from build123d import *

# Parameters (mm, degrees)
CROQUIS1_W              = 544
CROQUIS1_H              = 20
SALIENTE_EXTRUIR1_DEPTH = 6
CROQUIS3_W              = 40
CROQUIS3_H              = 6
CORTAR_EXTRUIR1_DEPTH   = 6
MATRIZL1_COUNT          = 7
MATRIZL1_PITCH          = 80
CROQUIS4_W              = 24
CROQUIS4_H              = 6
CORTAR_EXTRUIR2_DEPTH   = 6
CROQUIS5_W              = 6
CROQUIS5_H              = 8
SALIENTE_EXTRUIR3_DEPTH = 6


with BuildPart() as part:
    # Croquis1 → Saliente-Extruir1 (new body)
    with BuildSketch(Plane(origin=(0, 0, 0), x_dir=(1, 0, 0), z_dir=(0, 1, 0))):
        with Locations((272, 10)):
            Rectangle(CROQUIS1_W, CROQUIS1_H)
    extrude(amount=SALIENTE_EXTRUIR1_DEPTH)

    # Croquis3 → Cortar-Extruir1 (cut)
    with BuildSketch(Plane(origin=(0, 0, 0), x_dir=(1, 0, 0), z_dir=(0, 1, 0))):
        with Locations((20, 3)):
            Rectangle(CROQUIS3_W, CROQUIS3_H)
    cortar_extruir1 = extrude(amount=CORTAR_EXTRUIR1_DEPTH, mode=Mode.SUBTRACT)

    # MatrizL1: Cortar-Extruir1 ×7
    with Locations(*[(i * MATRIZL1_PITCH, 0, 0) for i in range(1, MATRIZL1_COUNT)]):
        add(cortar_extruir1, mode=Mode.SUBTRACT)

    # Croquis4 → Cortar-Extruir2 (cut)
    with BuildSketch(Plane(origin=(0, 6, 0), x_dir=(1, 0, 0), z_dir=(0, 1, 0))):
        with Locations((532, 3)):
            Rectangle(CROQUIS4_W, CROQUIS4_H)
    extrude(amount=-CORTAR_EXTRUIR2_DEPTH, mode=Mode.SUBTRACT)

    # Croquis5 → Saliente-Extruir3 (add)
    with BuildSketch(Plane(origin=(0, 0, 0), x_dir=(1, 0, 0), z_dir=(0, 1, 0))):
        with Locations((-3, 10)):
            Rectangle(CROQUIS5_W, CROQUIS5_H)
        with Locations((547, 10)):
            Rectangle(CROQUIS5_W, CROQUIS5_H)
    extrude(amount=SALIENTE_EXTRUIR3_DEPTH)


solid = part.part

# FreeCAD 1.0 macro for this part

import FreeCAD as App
import Part
import Sketcher
from FreeCAD import Vector
Q = App.Units.Quantity

doc = App.newDocument("Part")
params = doc.addObject("Spreadsheet::Sheet", "Params")
for row, (alias, value) in enumerate([
    ("sketch1_width", "544 mm"),
    ("sketch1_height", "20 mm"),
    ("pad1_length", "6 mm"),
    ("sketch2_width", "40 mm"),
    ("sketch2_height", "6 mm"),
    ("pocket1_length", "6 mm"),
    ("linearpattern_pitch", "80 mm"),
    ("sketch3_width", "24 mm"),
    ("sketch3_height", "6 mm"),
    ("pocket2_length", "6 mm"),
    ("sketch4_width", "6 mm"),
    ("sketch4_height", "8 mm"),
    ("pad2_length", "6 mm"),
], start=1):
    params.set(f"A{row}", alias)
    params.set(f"B{row}", "=" + value)
    params.setAlias(f"B{row}", alias)

body = doc.addObject("PartDesign::Body", "Body")

# Sketch on XZ plane
sketch1 = body.newObject("Sketcher::SketchObject", "Sketch")
sketch1.AttachmentSupport = (doc.getObject("XZ_Plane"), [""])
sketch1.MapMode = "FlatFace"
sketch1.addGeometry([
    Part.LineSegment(Vector(0, -20, 0), Vector(0, 0, 0)),
    Part.LineSegment(Vector(0, 0, 0), Vector(544, 0, 0)),
    Part.LineSegment(Vector(544, 0, 0), Vector(544, -20, 0)),
    Part.LineSegment(Vector(544, -20, 0), Vector(0, -20, 0)),
], False)
sketch1.addConstraint([
    Sketcher.Constraint("Coincident", 0, 2, 1, 1),
    Sketcher.Constraint("Coincident", 1, 2, 2, 1),
    Sketcher.Constraint("Coincident", 2, 2, 3, 1),
    Sketcher.Constraint("Coincident", 3, 2, 0, 1),
    Sketcher.Constraint("Vertical", 0),
    Sketcher.Constraint("Horizontal", 1),
    Sketcher.Constraint("Vertical", 2),
    Sketcher.Constraint("Horizontal", 3),
    Sketcher.Constraint("Coincident", 0, 2, -1, 1),
    Sketcher.Constraint("DistanceX", 1, 1, 1, 2, Q("544 mm")),
    Sketcher.Constraint("DistanceY", 0, 1, 0, 2, Q("20 mm")),
])
sketch1.setExpression("Constraints[9]", "Params.sketch1_width")
sketch1.setExpression("Constraints[10]", "Params.sketch1_height")
pad1 = body.newObject("PartDesign::Pad", "Pad")
pad1.Profile = sketch1
pad1.setExpression("Length", "Params.pad1_length")
pad1.Reversed = True

# Sketch on XZ plane
sketch2 = body.newObject("Sketcher::SketchObject", "Sketch001")
sketch2.AttachmentSupport = (doc.getObject("XZ_Plane"), [""])
sketch2.MapMode = "FlatFace"
sketch2.addGeometry([
    Part.LineSegment(Vector(0, -6, 0), Vector(0, 0, 0)),
    Part.LineSegment(Vector(0, 0, 0), Vector(40, 0, 0)),
    Part.LineSegment(Vector(40, 0, 0), Vector(40, -6, 0)),
    Part.LineSegment(Vector(40, -6, 0), Vector(0, -6, 0)),
], False)
sketch2.addConstraint([
    Sketcher.Constraint("Coincident", 0, 2, 1, 1),
    Sketcher.Constraint("Coincident", 1, 2, 2, 1),
    Sketcher.Constraint("Coincident", 2, 2, 3, 1),
    Sketcher.Constraint("Coincident", 3, 2, 0, 1),
    Sketcher.Constraint("Vertical", 0),
    Sketcher.Constraint("Horizontal", 1),
    Sketcher.Constraint("Vertical", 2),
    Sketcher.Constraint("Horizontal", 3),
    Sketcher.Constraint("Coincident", 0, 2, -1, 1),
    Sketcher.Constraint("DistanceX", 1, 1, 1, 2, Q("40 mm")),
    Sketcher.Constraint("DistanceY", 0, 1, 0, 2, Q("6 mm")),
])
sketch2.setExpression("Constraints[9]", "Params.sketch2_width")
sketch2.setExpression("Constraints[10]", "Params.sketch2_height")
pocket1 = body.newObject("PartDesign::Pocket", "Pocket")
pocket1.Profile = sketch2
pocket1.setExpression("Length", "Params.pocket1_length")
doc.recompute()

linearpattern = body.newObject("PartDesign::LinearPattern", "LinearPattern")
linearpattern.Originals = [pocket1]
linearpattern.Direction = (doc.getObject("X_Axis"), [""])
linearpattern.Mode = "offset"
linearpattern.setExpression("Offset", "Params.linearpattern_pitch")
linearpattern.Occurrences = 7
body.Tip = linearpattern

# Sketch on XZ plane
sketch3 = body.newObject("Sketcher::SketchObject", "Sketch002")
sketch3.AttachmentSupport = (doc.getObject("XZ_Plane"), [""])
sketch3.MapMode = "FlatFace"
sketch3.AttachmentOffset = App.Placement(Vector(0, 0, -6), App.Rotation())
sketch3.addGeometry([
    Part.LineSegment(Vector(520, -6, 0), Vector(520, 0, 0)),
    Part.LineSegment(Vector(520, 0, 0), Vector(544, 0, 0)),
    Part.LineSegment(Vector(544, 0, 0), Vector(544, -6, 0)),
    Part.LineSegment(Vector(544, -6, 0), Vector(520, -6, 0)),
], False)
sketch3.addConstraint([
    Sketcher.Constraint("Coincident", 0, 2, 1, 1),
    Sketcher.Constraint("Coincident", 1, 2, 2, 1),
    Sketcher.Constraint("Coincident", 2, 2, 3, 1),
    Sketcher.Constraint("Coincident", 3, 2, 0, 1),
    Sketcher.Constraint("Vertical", 0),
    Sketcher.Constraint("Horizontal", 1),
    Sketcher.Constraint("Vertical", 2),
    Sketcher.Constraint("Horizontal", 3),
    Sketcher.Constraint("PointOnObject", 0, 2, -1),
    Sketcher.Constraint("DistanceX", 1, 1, 1, 2, Q("24 mm")),
    Sketcher.Constraint("DistanceY", 0, 1, 0, 2, Q("6 mm")),
    Sketcher.Constraint("DistanceX", -1, 1, 0, 2, Q("520 mm")),
])
sketch3.setExpression("Constraints[9]", "Params.sketch3_width")
sketch3.setExpression("Constraints[10]", "Params.sketch3_height")
pocket2 = body.newObject("PartDesign::Pocket", "Pocket001")
pocket2.Profile = sketch3
pocket2.setExpression("Length", "Params.pocket2_length")
pocket2.Reversed = True

# Sketch on XZ plane
sketch4 = body.newObject("Sketcher::SketchObject", "Sketch003")
sketch4.AttachmentSupport = (doc.getObject("XZ_Plane"), [""])
sketch4.MapMode = "FlatFace"
sketch4.addGeometry([
    Part.LineSegment(Vector(-6, -14, 0), Vector(-6, -6, 0)),  # 0
    Part.LineSegment(Vector(-6, -6, 0), Vector(0, -6, 0)),  # 1
    Part.LineSegment(Vector(0, -6, 0), Vector(0, -14, 0)),  # 2
    Part.LineSegment(Vector(0, -14, 0), Vector(-6, -14, 0)),  # 3
    Part.LineSegment(Vector(544, -14, 0), Vector(544, -6, 0)),  # 4
    Part.LineSegment(Vector(544, -6, 0), Vector(550, -6, 0)),  # 5
    Part.LineSegment(Vector(550, -6, 0), Vector(550, -14, 0)),  # 6
    Part.LineSegment(Vector(550, -14, 0), Vector(544, -14, 0)),  # 7
], False)
sketch4.addConstraint([
    Sketcher.Constraint("Coincident", 0, 2, 1, 1),
    Sketcher.Constraint("Coincident", 1, 2, 2, 1),
    Sketcher.Constraint("Coincident", 2, 2, 3, 1),
    Sketcher.Constraint("Coincident", 3, 2, 0, 1),
    Sketcher.Constraint("Coincident", 4, 2, 5, 1),
    Sketcher.Constraint("Coincident", 5, 2, 6, 1),
    Sketcher.Constraint("Coincident", 6, 2, 7, 1),
    Sketcher.Constraint("Coincident", 7, 2, 4, 1),
    Sketcher.Constraint("Vertical", 0),
    Sketcher.Constraint("Horizontal", 1),
    Sketcher.Constraint("Vertical", 2),
    Sketcher.Constraint("Horizontal", 3),
    Sketcher.Constraint("Vertical", 4),
    Sketcher.Constraint("Horizontal", 5),
    Sketcher.Constraint("Vertical", 6),
    Sketcher.Constraint("Horizontal", 7),
    Sketcher.Constraint("PointOnObject", 1, 2, -2),
    Sketcher.Constraint("Horizontal", 1, 2, 4, 2),
    Sketcher.Constraint("Horizontal", 3, 2, 6, 2),
    Sketcher.Constraint("Equal", 3, 5),
    Sketcher.Constraint("DistanceX", 1, 1, 1, 2, Q("6 mm")),
    Sketcher.Constraint("DistanceY", 0, 1, 0, 2, Q("8 mm")),
    Sketcher.Constraint("DistanceY", 0, 2, -1, 1, Q("6 mm")),
    Sketcher.Constraint("DistanceX", -1, 1, 4, 2, Q("544 mm")),
])
sketch4.setExpression("Constraints[20]", "Params.sketch4_width")
sketch4.setExpression("Constraints[21]", "Params.sketch4_height")
pad2 = body.newObject("PartDesign::Pad", "Pad001")
pad2.Profile = sketch4
pad2.setExpression("Length", "Params.pad2_length")
pad2.Reversed = True

doc.recompute()
